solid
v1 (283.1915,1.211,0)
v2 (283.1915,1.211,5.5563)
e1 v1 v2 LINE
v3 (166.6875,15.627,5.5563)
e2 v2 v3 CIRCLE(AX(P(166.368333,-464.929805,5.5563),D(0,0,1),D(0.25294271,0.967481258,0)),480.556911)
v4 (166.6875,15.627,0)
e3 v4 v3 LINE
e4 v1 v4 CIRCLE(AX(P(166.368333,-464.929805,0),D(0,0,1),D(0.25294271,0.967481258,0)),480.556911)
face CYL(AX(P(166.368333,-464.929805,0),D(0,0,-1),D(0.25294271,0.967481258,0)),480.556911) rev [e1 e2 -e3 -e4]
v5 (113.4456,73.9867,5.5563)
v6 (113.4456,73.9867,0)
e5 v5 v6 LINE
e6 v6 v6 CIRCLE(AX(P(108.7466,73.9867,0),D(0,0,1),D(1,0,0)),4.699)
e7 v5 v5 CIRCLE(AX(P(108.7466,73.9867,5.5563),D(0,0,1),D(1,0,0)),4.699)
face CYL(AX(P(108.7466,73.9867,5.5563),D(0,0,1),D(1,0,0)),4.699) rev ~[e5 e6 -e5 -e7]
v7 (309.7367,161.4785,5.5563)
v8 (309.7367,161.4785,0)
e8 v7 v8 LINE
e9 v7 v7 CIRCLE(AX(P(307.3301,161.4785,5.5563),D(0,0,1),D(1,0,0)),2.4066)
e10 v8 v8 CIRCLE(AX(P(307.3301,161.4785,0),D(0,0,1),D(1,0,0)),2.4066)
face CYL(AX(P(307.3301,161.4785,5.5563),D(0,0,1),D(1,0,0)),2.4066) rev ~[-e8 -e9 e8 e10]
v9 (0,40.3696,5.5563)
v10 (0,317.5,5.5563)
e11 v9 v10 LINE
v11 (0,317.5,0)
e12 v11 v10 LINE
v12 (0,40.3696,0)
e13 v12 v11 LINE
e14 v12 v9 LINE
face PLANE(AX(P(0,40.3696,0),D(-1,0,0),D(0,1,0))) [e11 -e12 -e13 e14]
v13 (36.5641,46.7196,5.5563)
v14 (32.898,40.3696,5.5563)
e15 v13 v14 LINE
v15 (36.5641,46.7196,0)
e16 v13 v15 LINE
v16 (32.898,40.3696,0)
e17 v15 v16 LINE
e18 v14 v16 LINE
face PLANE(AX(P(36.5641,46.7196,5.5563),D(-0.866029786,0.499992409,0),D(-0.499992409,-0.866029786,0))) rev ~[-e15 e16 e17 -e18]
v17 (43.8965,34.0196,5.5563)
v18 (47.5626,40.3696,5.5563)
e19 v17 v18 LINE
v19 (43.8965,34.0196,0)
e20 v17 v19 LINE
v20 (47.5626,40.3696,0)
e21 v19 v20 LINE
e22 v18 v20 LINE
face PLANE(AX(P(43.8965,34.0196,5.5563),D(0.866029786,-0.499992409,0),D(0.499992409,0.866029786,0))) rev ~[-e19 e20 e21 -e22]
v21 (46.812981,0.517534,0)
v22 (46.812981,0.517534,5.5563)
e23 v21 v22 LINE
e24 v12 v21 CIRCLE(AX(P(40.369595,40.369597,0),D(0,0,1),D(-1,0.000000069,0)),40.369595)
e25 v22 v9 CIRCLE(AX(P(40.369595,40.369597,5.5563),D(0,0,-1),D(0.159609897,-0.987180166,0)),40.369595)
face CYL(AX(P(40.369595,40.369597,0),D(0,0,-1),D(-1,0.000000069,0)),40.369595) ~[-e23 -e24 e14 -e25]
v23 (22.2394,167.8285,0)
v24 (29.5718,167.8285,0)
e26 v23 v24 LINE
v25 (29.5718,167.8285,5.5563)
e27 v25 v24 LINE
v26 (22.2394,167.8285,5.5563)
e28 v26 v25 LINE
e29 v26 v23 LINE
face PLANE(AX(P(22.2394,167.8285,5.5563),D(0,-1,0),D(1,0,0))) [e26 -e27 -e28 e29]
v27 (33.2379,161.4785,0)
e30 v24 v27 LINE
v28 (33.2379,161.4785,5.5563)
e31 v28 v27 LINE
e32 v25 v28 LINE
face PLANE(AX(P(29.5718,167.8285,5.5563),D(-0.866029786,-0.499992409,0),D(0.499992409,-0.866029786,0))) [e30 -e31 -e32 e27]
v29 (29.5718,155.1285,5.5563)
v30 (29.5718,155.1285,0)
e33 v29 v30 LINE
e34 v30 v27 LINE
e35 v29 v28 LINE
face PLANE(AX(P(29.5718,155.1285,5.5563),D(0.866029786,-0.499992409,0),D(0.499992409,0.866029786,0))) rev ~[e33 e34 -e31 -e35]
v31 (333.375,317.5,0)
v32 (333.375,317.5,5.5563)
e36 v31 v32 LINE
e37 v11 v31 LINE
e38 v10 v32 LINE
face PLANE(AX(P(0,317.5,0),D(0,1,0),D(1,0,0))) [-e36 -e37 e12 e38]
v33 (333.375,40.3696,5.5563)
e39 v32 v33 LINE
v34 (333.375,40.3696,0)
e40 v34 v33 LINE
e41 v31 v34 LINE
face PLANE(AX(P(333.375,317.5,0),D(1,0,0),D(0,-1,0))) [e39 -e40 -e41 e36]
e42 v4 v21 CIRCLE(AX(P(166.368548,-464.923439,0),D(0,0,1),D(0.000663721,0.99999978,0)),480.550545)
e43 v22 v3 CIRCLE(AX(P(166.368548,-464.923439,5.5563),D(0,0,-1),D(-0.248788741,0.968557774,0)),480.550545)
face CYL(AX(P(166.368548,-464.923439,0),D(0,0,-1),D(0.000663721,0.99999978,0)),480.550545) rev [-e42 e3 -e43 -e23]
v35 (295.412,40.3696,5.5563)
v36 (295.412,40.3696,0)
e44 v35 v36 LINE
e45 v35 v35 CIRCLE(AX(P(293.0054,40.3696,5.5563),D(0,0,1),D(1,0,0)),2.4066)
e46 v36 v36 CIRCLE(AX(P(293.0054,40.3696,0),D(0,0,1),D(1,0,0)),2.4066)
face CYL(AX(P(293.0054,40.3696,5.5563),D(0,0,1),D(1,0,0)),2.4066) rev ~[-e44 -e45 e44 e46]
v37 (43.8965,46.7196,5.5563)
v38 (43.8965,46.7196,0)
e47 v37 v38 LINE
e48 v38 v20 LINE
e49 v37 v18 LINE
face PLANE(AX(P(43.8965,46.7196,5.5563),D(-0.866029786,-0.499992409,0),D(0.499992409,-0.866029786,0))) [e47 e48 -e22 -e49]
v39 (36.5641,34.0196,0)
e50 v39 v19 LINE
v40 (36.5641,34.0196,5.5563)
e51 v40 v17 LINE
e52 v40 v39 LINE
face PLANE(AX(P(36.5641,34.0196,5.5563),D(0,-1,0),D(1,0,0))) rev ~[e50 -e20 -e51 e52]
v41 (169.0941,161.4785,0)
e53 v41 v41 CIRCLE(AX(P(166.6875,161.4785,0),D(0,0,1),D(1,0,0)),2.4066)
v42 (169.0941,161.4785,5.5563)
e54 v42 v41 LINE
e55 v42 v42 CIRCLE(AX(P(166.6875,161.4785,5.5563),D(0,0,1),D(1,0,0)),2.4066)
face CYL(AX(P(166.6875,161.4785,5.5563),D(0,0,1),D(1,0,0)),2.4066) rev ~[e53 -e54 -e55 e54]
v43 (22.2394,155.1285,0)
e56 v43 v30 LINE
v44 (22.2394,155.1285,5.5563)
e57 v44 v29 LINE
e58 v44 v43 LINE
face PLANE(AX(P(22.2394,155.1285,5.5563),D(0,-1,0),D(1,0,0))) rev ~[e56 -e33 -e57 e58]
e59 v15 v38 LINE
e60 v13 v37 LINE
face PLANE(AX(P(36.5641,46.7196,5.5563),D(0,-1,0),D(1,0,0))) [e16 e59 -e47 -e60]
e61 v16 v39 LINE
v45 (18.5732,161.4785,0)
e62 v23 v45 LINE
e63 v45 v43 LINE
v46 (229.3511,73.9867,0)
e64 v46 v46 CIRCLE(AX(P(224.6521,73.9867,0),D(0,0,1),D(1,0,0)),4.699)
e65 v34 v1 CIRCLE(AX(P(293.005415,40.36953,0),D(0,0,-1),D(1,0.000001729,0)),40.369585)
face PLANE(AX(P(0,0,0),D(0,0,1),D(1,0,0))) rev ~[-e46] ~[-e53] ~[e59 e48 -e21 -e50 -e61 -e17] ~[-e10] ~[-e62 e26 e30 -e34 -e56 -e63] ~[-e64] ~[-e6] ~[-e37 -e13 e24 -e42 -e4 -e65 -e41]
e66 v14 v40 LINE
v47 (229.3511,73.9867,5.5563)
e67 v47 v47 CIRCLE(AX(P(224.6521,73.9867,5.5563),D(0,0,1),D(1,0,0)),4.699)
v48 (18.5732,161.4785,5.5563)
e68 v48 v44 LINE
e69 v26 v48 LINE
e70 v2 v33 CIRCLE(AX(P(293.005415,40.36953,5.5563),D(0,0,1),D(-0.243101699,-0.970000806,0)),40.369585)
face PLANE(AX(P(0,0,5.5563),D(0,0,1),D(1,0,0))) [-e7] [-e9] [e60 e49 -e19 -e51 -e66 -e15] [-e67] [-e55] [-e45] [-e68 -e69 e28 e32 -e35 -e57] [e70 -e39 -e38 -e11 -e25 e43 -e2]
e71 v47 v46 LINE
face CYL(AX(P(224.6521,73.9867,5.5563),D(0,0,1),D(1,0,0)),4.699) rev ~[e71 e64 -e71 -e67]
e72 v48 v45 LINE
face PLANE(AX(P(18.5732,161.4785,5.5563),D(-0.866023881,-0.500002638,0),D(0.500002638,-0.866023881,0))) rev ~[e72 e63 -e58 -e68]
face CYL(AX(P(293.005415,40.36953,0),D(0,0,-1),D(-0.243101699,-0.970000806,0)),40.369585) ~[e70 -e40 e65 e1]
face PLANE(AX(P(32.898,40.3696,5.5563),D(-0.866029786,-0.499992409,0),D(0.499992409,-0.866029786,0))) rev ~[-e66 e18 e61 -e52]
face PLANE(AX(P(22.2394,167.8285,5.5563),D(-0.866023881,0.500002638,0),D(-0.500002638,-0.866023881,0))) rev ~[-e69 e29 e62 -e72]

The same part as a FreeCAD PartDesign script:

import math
import FreeCAD as App
import Part
import Sketcher
Q = App.Units.Quantity

doc = App.newDocument("Part")
body = doc.addObject("PartDesign::Body", "Body")

# Sketch on XY plane
sketch1 = body.newObject("Sketcher::SketchObject", "Sketch")
sketch1.AttachmentSupport = (doc.getObject("XY_Plane"), [""])
sketch1.MapMode = "FlatFace"
sketch1.addGeometry(Part.ArcOfCircle(Part.Circle(App.Vector(40.3696, 40.3696, 0), App.Vector(0, 0, 1), 40.3696), math.radians(180), math.radians(279.184246)), False)
sketch1.addGeometry(Part.ArcOfCircle(Part.Circle(App.Vector(166.368548, -464.923439, 0), App.Vector(0, 0, 1), 480.550545), math.radians(89.961972), math.radians(104.405848)), False)
sketch1.addGeometry(Part.ArcOfCircle(Part.Circle(App.Vector(166.368333, -464.929805, 0), App.Vector(0, 0, 1), 480.556911), math.radians(75.930448), math.radians(89.961946)), False)
sketch1.addGeometry(Part.ArcOfCircle(Part.Circle(App.Vector(293.0054, 40.3696, 0), App.Vector(0, 0, 1), 40.369649), math.radians(-104.069633), math.radians(0)), False)
sketch1.addGeometry(Part.LineSegment(App.Vector(333.375, 40.3696, 0), App.Vector(333.375, 317.5, 0)), False)
sketch1.addGeometry(Part.LineSegment(App.Vector(333.375, 317.5, 0), App.Vector(0, 317.5, 0)), False)
sketch1.addGeometry(Part.LineSegment(App.Vector(0, 317.5, 0), App.Vector(0, 40.3696, 0)), False)
sketch1.addConstraint(Sketcher.Constraint("Coincident", 0, 2, 1, 2))
sketch1.addConstraint(Sketcher.Constraint("Coincident", 1, 1, 2, 2))
sketch1.addConstraint(Sketcher.Constraint("Coincident", 2, 1, 3, 1))
sketch1.addConstraint(Sketcher.Constraint("Coincident", 3, 2, 4, 1))
sketch1.addConstraint(Sketcher.Constraint("Coincident", 4, 2, 5, 1))
sketch1.addConstraint(Sketcher.Constraint("Coincident", 5, 2, 6, 1))
sketch1.addConstraint(Sketcher.Constraint("Coincident", 6, 2, 0, 1))
sketch1.addConstraint(Sketcher.Constraint("Vertical", 4))
sketch1.addConstraint(Sketcher.Constraint("Horizontal", 5))
sketch1.addConstraint(Sketcher.Constraint("Vertical", 6))
sketch1.addConstraint(Sketcher.Constraint("PointOnObject", 5, 2, -2))
sketch1.addConstraint(Sketcher.Constraint("DistanceY", -1, 1, 4, 2, Q("12.5 in")))
sketch1.addConstraint(Sketcher.Constraint("DistanceX", 5, 2, 5, 1, Q("13.125 in")))
sketch1.addConstraint(Sketcher.Constraint("DistanceX", 2, 3, 1, 3, Q("0 in")))
sketch1.addConstraint(Sketcher.Constraint("Radius", 0, Q("40.3696 mm")))
sketch1.addConstraint(Sketcher.Constraint("Radius", 1, Q("18.919311 in")))
sketch1.addConstraint(Sketcher.Constraint("Radius", 2, Q("480.557 mm")))
sketch1.addConstraint(Sketcher.Constraint("Radius", 3, Q("40.3696 mm")))
sketch1.addConstraint(Sketcher.Constraint("DistanceX", -1, 1, 1, 1, Q("6.5625 in")))
sketch1.addConstraint(Sketcher.Constraint("DistanceY", 4, 1, 4, 2, Q("277.1304 mm")))
sketch1.addConstraint(Sketcher.Constraint("DistanceY", 6, 2, 6, 1, Q("277.1304 mm")))
sketch1.addConstraint(Sketcher.Constraint("DistanceX", 0, 3, 1, 3, Q("4.9606 in")))
sketch1.addConstraint(Sketcher.Constraint("DistanceX", 0, 2, 2, 3, Q("4.7069 in")))
sketch1.addConstraint(Sketcher.Constraint("DistanceY", 0, 2, 2, 1, Q("0.0273 in")))
sketch1.addConstraint(Sketcher.Constraint("DistanceY", -1, 1, 0, 3, Q("40.3696 mm")))
pad1 = body.newObject("PartDesign::Pad", "Pad")
pad1.Profile = sketch1
pad1.Length = Q("0.218752 in")

# Sketch on XY plane
sketch2 = body.newObject("Sketcher::SketchObject", "Sketch001")
sketch2.AttachmentSupport = (doc.getObject("XY_Plane"), [""])
sketch2.MapMode = "FlatFace"
sketch2.AttachmentOffset = App.Placement(App.Vector(0, 0, 0.218752 * 25.4), App.Rotation())
sketch2.addGeometry(Part.LineSegment(App.Vector(36.6, 34, 0), App.Vector(43.9, 34, 0)), False)
sketch2.addGeometry(Part.LineSegment(App.Vector(43.9, 34, 0), App.Vector(47.6, 40.4, 0)), False)
sketch2.addGeometry(Part.LineSegment(App.Vector(47.6, 40.4, 0), App.Vector(43.9, 46.7, 0)), False)
sketch2.addGeometry(Part.LineSegment(App.Vector(43.9, 46.7, 0), App.Vector(36.6, 46.7, 0)), False)
sketch2.addGeometry(Part.LineSegment(App.Vector(36.6, 46.7, 0), App.Vector(32.9, 40.4, 0)), False)
sketch2.addGeometry(Part.LineSegment(App.Vector(32.9, 40.4, 0), App.Vector(36.6, 34, 0)), False)
sketch2.addGeometry(Part.LineSegment(App.Vector(29.6, 167.8, 0), App.Vector(22.2, 167.8, 0)), False)
sketch2.addGeometry(Part.LineSegment(App.Vector(22.2, 167.8, 0), App.Vector(18.6, 161.5, 0)), False)
sketch2.addGeometry(Part.LineSegment(App.Vector(18.6, 161.5, 0), App.Vector(22.2, 155.1, 0)), False)
sketch2.addGeometry(Part.LineSegment(App.Vector(22.2, 155.1, 0), App.Vector(29.6, 155.1, 0)), False)
sketch2.addGeometry(Part.LineSegment(App.Vector(29.6, 155.1, 0), App.Vector(33.2, 161.5, 0)), False)
sketch2.addGeometry(Part.LineSegment(App.Vector(33.2, 161.5, 0), App.Vector(29.6, 167.8, 0)), False)
sketch2.addGeometry(Part.Circle(App.Vector(166.7, 161.5, 0), App.Vector(0, 0, 1), 2.4), False)
sketch2.addGeometry(Part.Circle(App.Vector(293, 40.4, 0), App.Vector(0, 0, 1), 2.4), False)
sketch2.addGeometry(Part.Circle(App.Vector(307.3, 161.5, 0), App.Vector(0, 0, 1), 2.4), False)
sketch2.addConstraint(Sketcher.Constraint("Coincident", 0, 2, 1, 1))
sketch2.addConstraint(Sketcher.Constraint("Coincident", 1, 2, 2, 1))
sketch2.addConstraint(Sketcher.Constraint("Coincident", 2, 2, 3, 1))
sketch2.addConstraint(Sketcher.Constraint("Coincident", 3, 2, 4, 1))
sketch2.addConstraint(Sketcher.Constraint("Coincident", 4, 2, 5, 1))
sketch2.addConstraint(Sketcher.Constraint("Coincident", 5, 2, 0, 1))
sketch2.addConstraint(Sketcher.Constraint("Coincident", 6, 2, 7, 1))
sketch2.addConstraint(Sketcher.Constraint("Coincident", 7, 2, 8, 1))
sketch2.addConstraint(Sketcher.Constraint("Coincident", 8, 2, 9, 1))
sketch2.addConstraint(Sketcher.Constraint("Coincident", 9, 2, 10, 1))
sketch2.addConstraint(Sketcher.Constraint("Coincident", 10, 2, 11, 1))
sketch2.addConstraint(Sketcher.Constraint("Coincident", 11, 2, 6, 1))
sketch2.addConstraint(Sketcher.Constraint("Horizontal", 0))
sketch2.addConstraint(Sketcher.Constraint("Horizontal", 3))
sketch2.addConstraint(Sketcher.Constraint("Horizontal", 6))
sketch2.addConstraint(Sketcher.Constraint("Horizontal", 9))
sketch2.addConstraint(Sketcher.Constraint("Equal", 12, 13))
sketch2.addConstraint(Sketcher.Constraint("Equal", 13, 14))
sketch2.addConstraint(Sketcher.Constraint("Parallel", 1, 4))
sketch2.addConstraint(Sketcher.Constraint("Parallel", 2, 5))
sketch2.addConstraint(Sketcher.Constraint("Parallel", 4, 7))
sketch2.addConstraint(Sketcher.Constraint("Parallel", 5, 8))
sketch2.addConstraint(Sketcher.Constraint("Parallel", 7, 10))
sketch2.addConstraint(Sketcher.Constraint("Parallel", 8, 11))
sketch2.addConstraint(Sketcher.Constraint("Horizontal", 12, 3, 14, 3))
sketch2.addConstraint(Sketcher.Constraint("Horizontal", 13, 3, 1, 2))
sketch2.addConstraint(Sketcher.Constraint("Horizontal", 1, 2, 4, 2))
sketch2.addConstraint(Sketcher.Constraint("Horizontal", 14, 3, 7, 2))
sketch2.addConstraint(Sketcher.Constraint("Horizontal", 7, 2, 10, 2))
sketch2.addConstraint(Sketcher.Constraint("Vertical", 0, 2, 2, 2))
sketch2.addConstraint(Sketcher.Constraint("Vertical", 3, 2, 5, 2))
sketch2.addConstraint(Sketcher.Constraint("Vertical", 6, 2, 8, 2))
sketch2.addConstraint(Sketcher.Constraint("Equal", 3, 6))
sketch2.addConstraint(Sketcher.Constraint("Equal", 5, 7))
sketch2.addConstraint(Sketcher.Constraint("DistanceY", 0, 2, 2, 2, Q("0.5 in")))
sketch2.addConstraint(Sketcher.Constraint("Angle", 1, Q("60.0005 deg")))
sketch2.addConstraint(Sketcher.Constraint("Diameter", 12, Q("0.1895 in")))
sketch2.addConstraint(Sketcher.Constraint("DistanceX", 0, 1, 0, 2, Q("7.3324 mm")))
sketch2.addConstraint(Sketcher.Constraint("DistanceX", -1, 1, 12, 3, Q("6.5625 in")))
sketch2.addConstraint(Sketcher.Constraint("DistanceX", -1, 1, 14, 3, Q("12.0996 in")))
sketch2.addConstraint(Sketcher.Constraint("DistanceX", -1, 1, 0, 2, Q("1.7282 in")))
sketch2.addConstraint(Sketcher.Constraint("DistanceX", 1, 2, 13, 3, Q("9.6631 in")))
sketch2.addConstraint(Sketcher.Constraint("DistanceX", 7, 2, 3, 2, Q("0.7083 in")))
sketch2.addConstraint(Sketcher.Constraint("DistanceY", -1, 1, 12, 3, Q("161.4785 mm")))
sketch2.addConstraint(Sketcher.Constraint("DistanceY", -1, 1, 13, 3, Q("40.3696 mm")))
pocket1 = body.newObject("PartDesign::Pocket", "Pocket")
pocket1.Profile = sketch2
pocket1.Type = "ThroughAll"

# Sketch on XY plane
sketch3 = body.newObject("Sketcher::SketchObject", "Sketch002")
sketch3.AttachmentSupport = (doc.getObject("XY_Plane"), [""])
sketch3.MapMode = "FlatFace"
sketch3.AttachmentOffset = App.Placement(App.Vector(0, 0, 0.218752 * 25.4), App.Rotation())
sketch3.addGeometry(Part.Circle(App.Vector(224.7, 74, 0), App.Vector(0, 0, 1), 4.7), False)
sketch3.addGeometry(Part.Circle(App.Vector(108.7, 74, 0), App.Vector(0, 0, 1), 4.7), False)
sketch3.addConstraint(Sketcher.Constraint("Equal", 0, 1))
sketch3.addConstraint(Sketcher.Constraint("Horizontal", 0, 3, 1, 3))
sketch3.addConstraint(Sketcher.Constraint("Diameter", 0, Q("0.37 in")))
sketch3.addConstraint(Sketcher.Constraint("DistanceX", 1, 3, 0, 3, Q("4.5632 in")))
sketch3.addConstraint(Sketcher.Constraint("DistanceX", -1, 1, 0, 3, Q("224.652 mm")))
sketch3.addConstraint(Sketcher.Constraint("DistanceY", -1, 1, 0, 3, Q("73.9867 mm")))
pocket2 = body.newObject("PartDesign::Pocket", "Pocket001")
pocket2.Profile = sketch3
pocket2.Type = "ThroughAll"

doc.recompute()
